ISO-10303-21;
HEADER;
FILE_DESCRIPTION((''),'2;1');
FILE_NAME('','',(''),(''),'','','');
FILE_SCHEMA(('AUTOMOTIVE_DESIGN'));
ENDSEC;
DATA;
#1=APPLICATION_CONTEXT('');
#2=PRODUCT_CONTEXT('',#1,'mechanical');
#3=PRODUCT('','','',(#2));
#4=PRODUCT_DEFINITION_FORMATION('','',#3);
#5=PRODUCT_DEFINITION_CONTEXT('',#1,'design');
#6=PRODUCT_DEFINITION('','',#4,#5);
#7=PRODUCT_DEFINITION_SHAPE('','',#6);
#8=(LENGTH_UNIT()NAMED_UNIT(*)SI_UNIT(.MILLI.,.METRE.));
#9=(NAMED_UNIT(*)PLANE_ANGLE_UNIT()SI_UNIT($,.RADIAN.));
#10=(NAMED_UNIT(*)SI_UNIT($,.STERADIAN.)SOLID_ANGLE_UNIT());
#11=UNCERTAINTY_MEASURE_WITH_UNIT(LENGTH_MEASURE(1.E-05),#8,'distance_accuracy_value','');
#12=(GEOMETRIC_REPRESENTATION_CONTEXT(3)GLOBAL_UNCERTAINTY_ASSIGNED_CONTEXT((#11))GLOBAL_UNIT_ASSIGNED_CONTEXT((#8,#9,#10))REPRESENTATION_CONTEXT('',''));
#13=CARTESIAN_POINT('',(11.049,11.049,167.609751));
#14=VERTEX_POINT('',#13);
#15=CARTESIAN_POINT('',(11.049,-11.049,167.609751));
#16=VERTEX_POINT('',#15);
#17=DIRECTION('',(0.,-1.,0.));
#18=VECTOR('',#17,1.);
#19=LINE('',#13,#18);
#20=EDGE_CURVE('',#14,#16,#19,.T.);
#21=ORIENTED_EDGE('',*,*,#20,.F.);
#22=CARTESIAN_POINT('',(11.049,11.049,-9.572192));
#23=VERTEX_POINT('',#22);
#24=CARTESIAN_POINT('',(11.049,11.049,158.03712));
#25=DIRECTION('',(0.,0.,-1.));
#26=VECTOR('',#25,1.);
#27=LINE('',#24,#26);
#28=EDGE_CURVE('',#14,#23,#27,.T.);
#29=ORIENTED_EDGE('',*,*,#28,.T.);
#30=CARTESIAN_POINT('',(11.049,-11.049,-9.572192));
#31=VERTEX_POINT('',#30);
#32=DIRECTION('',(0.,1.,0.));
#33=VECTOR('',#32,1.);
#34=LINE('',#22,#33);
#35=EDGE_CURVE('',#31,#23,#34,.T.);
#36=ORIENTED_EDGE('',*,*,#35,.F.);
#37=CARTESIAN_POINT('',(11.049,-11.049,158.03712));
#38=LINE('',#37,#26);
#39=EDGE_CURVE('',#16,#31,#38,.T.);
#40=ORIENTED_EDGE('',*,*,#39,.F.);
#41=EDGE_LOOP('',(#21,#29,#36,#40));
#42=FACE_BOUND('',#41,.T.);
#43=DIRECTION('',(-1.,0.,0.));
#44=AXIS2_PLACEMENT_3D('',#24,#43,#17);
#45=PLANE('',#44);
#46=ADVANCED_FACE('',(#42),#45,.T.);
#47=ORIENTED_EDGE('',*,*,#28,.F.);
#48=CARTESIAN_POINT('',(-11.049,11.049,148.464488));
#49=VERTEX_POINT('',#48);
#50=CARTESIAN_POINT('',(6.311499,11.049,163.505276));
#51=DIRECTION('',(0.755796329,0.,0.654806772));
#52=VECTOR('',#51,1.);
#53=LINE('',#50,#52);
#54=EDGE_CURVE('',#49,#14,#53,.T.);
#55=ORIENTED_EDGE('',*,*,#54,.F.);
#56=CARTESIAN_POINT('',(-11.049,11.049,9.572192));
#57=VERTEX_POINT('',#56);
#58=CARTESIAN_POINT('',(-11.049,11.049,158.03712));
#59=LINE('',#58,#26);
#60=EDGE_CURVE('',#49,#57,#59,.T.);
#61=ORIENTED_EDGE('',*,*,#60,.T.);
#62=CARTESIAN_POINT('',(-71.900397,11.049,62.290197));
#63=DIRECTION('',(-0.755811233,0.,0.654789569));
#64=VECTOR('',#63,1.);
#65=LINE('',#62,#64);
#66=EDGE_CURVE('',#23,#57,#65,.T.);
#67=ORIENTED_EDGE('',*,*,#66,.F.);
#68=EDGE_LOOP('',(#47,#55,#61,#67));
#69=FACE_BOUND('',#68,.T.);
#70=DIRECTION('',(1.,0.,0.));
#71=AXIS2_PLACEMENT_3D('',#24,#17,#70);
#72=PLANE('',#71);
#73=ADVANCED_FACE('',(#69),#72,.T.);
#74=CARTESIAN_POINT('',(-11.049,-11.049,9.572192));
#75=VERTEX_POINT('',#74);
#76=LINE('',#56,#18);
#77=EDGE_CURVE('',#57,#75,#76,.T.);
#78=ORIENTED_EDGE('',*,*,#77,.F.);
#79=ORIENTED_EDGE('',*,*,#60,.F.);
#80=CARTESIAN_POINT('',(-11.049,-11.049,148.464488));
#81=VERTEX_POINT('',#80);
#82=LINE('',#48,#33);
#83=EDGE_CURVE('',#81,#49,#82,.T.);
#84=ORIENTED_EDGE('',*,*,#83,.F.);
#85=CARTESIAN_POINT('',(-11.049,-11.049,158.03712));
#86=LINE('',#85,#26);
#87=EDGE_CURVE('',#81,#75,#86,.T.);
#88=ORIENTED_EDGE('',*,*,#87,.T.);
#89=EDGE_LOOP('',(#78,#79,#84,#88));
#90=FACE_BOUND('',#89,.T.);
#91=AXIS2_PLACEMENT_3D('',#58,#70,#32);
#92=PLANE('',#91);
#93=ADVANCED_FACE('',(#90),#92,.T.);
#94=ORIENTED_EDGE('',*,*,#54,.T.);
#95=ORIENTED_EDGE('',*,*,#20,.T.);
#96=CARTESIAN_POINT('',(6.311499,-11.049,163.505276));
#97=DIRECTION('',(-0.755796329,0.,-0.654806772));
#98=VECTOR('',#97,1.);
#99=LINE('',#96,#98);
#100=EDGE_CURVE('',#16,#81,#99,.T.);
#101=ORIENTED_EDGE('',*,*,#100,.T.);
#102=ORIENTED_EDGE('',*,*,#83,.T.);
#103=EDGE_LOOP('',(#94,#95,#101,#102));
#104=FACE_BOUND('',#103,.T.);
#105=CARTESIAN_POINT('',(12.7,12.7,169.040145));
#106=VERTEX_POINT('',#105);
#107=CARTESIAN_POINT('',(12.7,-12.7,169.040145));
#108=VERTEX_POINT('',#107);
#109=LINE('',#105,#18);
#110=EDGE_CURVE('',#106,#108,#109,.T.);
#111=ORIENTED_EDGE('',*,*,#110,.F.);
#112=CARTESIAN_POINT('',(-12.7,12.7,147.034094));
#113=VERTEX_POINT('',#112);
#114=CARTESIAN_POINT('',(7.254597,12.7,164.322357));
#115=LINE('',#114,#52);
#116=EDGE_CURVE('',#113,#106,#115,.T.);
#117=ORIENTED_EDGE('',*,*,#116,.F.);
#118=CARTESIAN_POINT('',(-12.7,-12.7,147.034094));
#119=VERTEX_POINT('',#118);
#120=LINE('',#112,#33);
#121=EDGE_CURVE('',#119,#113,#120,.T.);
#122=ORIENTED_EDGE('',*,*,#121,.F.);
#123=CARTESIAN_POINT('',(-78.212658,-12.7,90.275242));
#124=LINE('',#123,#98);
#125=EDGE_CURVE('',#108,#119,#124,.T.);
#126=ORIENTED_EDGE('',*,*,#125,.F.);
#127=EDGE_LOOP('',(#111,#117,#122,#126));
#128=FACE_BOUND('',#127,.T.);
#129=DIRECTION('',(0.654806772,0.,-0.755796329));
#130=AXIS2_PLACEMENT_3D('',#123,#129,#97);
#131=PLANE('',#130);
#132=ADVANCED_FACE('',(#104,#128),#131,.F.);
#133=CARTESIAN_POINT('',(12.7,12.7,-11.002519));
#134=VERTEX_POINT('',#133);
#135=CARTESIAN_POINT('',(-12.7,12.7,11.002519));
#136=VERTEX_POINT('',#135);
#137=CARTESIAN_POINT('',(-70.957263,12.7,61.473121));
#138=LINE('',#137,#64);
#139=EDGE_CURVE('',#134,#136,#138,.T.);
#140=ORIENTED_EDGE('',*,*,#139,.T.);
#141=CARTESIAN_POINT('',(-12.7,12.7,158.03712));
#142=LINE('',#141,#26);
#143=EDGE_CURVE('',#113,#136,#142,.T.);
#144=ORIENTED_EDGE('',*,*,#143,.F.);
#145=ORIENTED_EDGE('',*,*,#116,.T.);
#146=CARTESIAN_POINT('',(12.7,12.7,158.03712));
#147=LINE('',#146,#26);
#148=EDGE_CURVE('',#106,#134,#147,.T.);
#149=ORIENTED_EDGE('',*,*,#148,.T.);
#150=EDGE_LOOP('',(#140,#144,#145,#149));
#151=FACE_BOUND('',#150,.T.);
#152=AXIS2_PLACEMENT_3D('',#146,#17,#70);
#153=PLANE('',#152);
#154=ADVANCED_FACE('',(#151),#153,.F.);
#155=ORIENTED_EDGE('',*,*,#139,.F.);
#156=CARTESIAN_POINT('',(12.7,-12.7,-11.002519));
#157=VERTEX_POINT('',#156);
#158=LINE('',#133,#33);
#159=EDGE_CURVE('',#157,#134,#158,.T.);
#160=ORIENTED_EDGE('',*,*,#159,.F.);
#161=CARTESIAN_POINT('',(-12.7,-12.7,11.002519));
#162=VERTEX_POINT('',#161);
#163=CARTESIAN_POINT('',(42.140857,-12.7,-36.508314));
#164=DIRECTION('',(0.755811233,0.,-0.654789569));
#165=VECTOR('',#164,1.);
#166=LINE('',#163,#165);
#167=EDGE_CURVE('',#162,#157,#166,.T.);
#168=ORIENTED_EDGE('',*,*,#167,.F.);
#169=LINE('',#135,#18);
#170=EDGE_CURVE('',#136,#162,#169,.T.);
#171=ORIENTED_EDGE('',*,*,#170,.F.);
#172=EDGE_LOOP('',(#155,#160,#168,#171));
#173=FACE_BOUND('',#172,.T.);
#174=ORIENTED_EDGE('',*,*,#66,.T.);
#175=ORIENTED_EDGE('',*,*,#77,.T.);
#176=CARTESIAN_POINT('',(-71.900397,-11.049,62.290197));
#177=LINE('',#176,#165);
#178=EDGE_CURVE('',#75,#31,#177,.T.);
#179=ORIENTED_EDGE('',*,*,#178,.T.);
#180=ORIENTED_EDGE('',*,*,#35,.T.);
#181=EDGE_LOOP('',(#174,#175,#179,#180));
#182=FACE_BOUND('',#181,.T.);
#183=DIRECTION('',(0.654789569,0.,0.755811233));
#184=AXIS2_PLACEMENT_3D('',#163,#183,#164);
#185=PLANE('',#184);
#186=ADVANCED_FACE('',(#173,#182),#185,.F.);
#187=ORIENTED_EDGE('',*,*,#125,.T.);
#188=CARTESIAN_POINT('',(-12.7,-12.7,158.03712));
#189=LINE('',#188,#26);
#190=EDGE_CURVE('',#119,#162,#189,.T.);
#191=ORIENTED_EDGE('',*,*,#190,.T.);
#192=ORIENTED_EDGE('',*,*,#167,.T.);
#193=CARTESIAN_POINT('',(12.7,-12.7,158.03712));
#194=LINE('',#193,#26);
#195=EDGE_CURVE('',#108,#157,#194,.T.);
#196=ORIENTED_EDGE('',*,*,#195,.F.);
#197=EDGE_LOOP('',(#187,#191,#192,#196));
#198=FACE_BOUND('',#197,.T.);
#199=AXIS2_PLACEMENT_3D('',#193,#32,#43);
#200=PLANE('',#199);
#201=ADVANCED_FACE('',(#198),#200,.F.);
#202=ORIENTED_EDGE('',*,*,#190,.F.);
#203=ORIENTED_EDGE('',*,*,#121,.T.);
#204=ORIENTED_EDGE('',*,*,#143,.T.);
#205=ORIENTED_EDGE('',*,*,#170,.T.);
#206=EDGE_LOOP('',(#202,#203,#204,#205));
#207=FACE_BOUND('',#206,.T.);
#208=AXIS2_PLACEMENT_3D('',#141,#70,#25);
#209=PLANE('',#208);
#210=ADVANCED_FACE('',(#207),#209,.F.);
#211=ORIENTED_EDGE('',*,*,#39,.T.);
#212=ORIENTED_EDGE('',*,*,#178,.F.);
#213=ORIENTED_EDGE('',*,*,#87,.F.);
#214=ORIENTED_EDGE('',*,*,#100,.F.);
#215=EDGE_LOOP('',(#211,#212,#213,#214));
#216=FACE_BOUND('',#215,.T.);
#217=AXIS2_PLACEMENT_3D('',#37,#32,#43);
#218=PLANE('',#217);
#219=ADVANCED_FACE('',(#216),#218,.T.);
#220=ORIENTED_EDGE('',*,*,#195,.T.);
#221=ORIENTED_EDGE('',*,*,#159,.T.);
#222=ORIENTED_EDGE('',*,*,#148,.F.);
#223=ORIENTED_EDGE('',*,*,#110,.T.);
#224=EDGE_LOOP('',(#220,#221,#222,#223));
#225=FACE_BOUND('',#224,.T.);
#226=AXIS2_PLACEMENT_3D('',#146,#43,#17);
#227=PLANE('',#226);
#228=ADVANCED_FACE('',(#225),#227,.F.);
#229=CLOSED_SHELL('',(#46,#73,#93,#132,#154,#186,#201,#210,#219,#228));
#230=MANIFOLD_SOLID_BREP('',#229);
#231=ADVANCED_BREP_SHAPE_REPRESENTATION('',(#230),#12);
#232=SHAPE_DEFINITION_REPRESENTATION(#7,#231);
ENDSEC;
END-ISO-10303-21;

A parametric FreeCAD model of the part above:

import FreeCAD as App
import Part
import Sketcher
Q = App.Units.Quantity


def add_polygon(sketch, points):
    """Adds a closed chain of lines whose ends are joined by coincident constraints."""
    first, n = sketch.GeometryCount, len(points)
    for a, b in zip(points, points[1:] + points[:1]):
        sketch.addGeometry(Part.LineSegment(App.Vector(*a, 0), App.Vector(*b, 0)), False)
    for i in range(n):
        sketch.addConstraint(Sketcher.Constraint("Coincident", first + i, 2, first + (i + 1) % n, 1))

doc = App.newDocument("Part")
body = doc.addObject("PartDesign::Body", "Body")

sketch1 = doc.addObject("Sketcher::SketchObject", "Sketch")
body.addObject(sketch1)
sketch1.AttachmentSupport = (doc.XY_Plane, [""])
sketch1.MapMode = "FlatFace"
add_polygon(sketch1, [(-12.7, 12.7), (-12.7, -12.7), (12.7, -12.7), (12.7, 12.7)])
add_polygon(sketch1, [(11.049, -11.049), (-11.049, -11.049), (-11.049, 11.049), (11.049, 11.049)])
sketch1.addConstraint([
    Sketcher.Constraint("Vertical", 0),
    Sketcher.Constraint("Horizontal", 1),
    Sketcher.Constraint("Vertical", 2),
    Sketcher.Constraint("Horizontal", 3),
    Sketcher.Constraint("Horizontal", 4),
    Sketcher.Constraint("Vertical", 5),
    Sketcher.Constraint("Horizontal", 6),
    Sketcher.Constraint("Vertical", 7),
    Sketcher.Constraint("Symmetric", 0, 2, 2, 2, -1, 1),
    Sketcher.Constraint("Symmetric", 4, 2, 6, 2, -1, 1),
    Sketcher.Constraint("Equal", 3, 0),
    Sketcher.Constraint("Equal", 6, 5),
    Sketcher.Constraint("DistanceX", 1, 1, 1, 2, Q("1 in")),
    Sketcher.Constraint("DistanceX", 4, 2, 4, 1, Q("0.87 in")),
])
pad1 = doc.addObject("PartDesign::Pad", "Pad")
body.addObject(pad1)
pad1.Profile = sketch1
pad1.Length = 158.03712

sketch2 = doc.addObject("Sketcher::SketchObject", "Sketch001")
body.addObject(sketch2)
sketch2.AttachmentSupport = (doc.XY_Plane, [""])
sketch2.MapMode = "FlatFace"
add_polygon(sketch2, [(12.7, 12.7), (12.7, -12.7), (-12.7, -12.7), (-12.7, 12.7)])
add_polygon(sketch2, [(-11.049, -11.049), (11.049, -11.049), (11.049, 11.049), (-11.049, 11.049)])
sketch2.addConstraint([
    Sketcher.Constraint("Vertical", 0),
    Sketcher.Constraint("Horizontal", 1),
    Sketcher.Constraint("Vertical", 2),
    Sketcher.Constraint("Horizontal", 3),
    Sketcher.Constraint("Horizontal", 4),
    Sketcher.Constraint("Vertical", 5),
    Sketcher.Constraint("Horizontal", 6),
    Sketcher.Constraint("Vertical", 7),
    Sketcher.Constraint("Symmetric", 0, 2, 2, 2, -1, 1),
    Sketcher.Constraint("Symmetric", 4, 2, 6, 2, -1, 1),
    Sketcher.Constraint("Equal", 3, 0),
    Sketcher.Constraint("Equal", 6, 5),
    Sketcher.Constraint("DistanceX", 1, 2, 1, 1, Q("1 in")),
    Sketcher.Constraint("DistanceX", 4, 1, 4, 2, Q("0.87 in")),
])
pad2 = doc.addObject("PartDesign::Pad", "Pad001")
body.addObject(pad2)
pad2.Profile = sketch2
pad2.Length = Q("0.5 in")
pad2.Reversed = True

sketch3 = doc.addObject("Sketcher::SketchObject", "Sketch002")
body.addObject(sketch3)
sketch3.AttachmentSupport = (doc.XZ_Plane, [""])
sketch3.MapMode = "FlatFace"
sketch3.AttachmentOffset = App.Placement(App.Vector(0, 0, -22.7), App.Rotation())
add_polygon(sketch3, [(-34.628433, 30), (42.140857, -36.508314), (-56.5716, -82.773791)])
sketch3.addConstraint([
    Sketcher.Constraint("DistanceX", 1, 2, -1, 1, 56.5716),
    Sketcher.Constraint("DistanceY", -1, 1, 2, 2, 30.0),
    Sketcher.Constraint("DistanceY", 1, 2, -1, 1, 82.773791),
    Sketcher.Constraint("DistanceX", 2, 2, 0, 2, 76.76929),
    Sketcher.Constraint("Distance", 0, 101.572042),
    Sketcher.Constraint("Distance", 1, 109.016712),
])
pocket1 = doc.addObject("PartDesign::Pocket", "Pocket")
body.addObject(pocket1)
pocket1.Profile = sketch3
pocket1.Type = "ThroughAll"
pocket1.Reversed = True

sketch4 = doc.addObject("Sketcher::SketchObject", "Sketch003")
body.addObject(sketch4)
sketch4.AttachmentSupport = (doc.XY_Plane, [""])
sketch4.MapMode = "FlatFace"
sketch4.AttachmentOffset = App.Placement(App.Vector(0, 0, 158.03712), App.Rotation())
add_polygon(sketch4, [(-12.7, 12.7), (-12.7, -12.7), (12.7, -12.7), (12.7, 12.7)])
add_polygon(sketch4, [(11.049, -11.049), (-11.049, -11.049), (-11.049, 11.049), (11.049, 11.049)])
sketch4.addConstraint([
    Sketcher.Constraint("Vertical", 0),
    Sketcher.Constraint("Horizontal", 1),
    Sketcher.Constraint("Vertical", 2),
    Sketcher.Constraint("Horizontal", 3),
    Sketcher.Constraint("Horizontal", 4),
    Sketcher.Constraint("Vertical", 5),
    Sketcher.Constraint("Horizontal", 6),
    Sketcher.Constraint("Vertical", 7),
    Sketcher.Constraint("Symmetric", 0, 2, 2, 2, -1, 1),
    Sketcher.Constraint("Symmetric", 4, 2, 6, 2, -1, 1),
    Sketcher.Constraint("Equal", 3, 0),
    Sketcher.Constraint("Equal", 6, 5),
    Sketcher.Constraint("DistanceX", 1, 1, 1, 2, Q("1 in")),
    Sketcher.Constraint("DistanceX", 4, 2, 4, 1, Q("0.87 in")),
])
pad3 = doc.addObject("PartDesign::Pad", "Pad002")
body.addObject(pad3)
pad3.Profile = sketch4
pad3.Length = Q("1 in")

sketch5 = doc.addObject("Sketcher::SketchObject", "Sketch004")
body.addObject(sketch5)
sketch5.AttachmentSupport = (doc.XZ_Plane, [""])
sketch5.MapMode = "FlatFace"
sketch5.AttachmentOffset = App.Placement(App.Vector(0, 0, -22.7), App.Rotation())
add_polygon(sketch5, [(-31.983859, 130.326946), (-59.97684, 219.292685), (25.937994, 180.509277)])
sketch5.addConstraint([
    Sketcher.Constraint("Distance", 0, 93.265802),
    Sketcher.Constraint("Distance", 1, 94.26299),
    Sketcher.Constraint("DistanceX", 0, 2, -1, 1, 59.97684),
    Sketcher.Constraint("DistanceX", 2, 2, -1, 1, 31.983859),
    Sketcher.Constraint("DistanceY", 1, 2, 0, 2, 38.783408),
    Sketcher.Constraint("DistanceY", -1, 1, 0, 2, 219.292685),
])
pocket2 = doc.addObject("PartDesign::Pocket", "Pocket001")
body.addObject(pocket2)
pocket2.Profile = sketch5
pocket2.Type = "ThroughAll"
pocket2.Reversed = True

doc.recompute()
